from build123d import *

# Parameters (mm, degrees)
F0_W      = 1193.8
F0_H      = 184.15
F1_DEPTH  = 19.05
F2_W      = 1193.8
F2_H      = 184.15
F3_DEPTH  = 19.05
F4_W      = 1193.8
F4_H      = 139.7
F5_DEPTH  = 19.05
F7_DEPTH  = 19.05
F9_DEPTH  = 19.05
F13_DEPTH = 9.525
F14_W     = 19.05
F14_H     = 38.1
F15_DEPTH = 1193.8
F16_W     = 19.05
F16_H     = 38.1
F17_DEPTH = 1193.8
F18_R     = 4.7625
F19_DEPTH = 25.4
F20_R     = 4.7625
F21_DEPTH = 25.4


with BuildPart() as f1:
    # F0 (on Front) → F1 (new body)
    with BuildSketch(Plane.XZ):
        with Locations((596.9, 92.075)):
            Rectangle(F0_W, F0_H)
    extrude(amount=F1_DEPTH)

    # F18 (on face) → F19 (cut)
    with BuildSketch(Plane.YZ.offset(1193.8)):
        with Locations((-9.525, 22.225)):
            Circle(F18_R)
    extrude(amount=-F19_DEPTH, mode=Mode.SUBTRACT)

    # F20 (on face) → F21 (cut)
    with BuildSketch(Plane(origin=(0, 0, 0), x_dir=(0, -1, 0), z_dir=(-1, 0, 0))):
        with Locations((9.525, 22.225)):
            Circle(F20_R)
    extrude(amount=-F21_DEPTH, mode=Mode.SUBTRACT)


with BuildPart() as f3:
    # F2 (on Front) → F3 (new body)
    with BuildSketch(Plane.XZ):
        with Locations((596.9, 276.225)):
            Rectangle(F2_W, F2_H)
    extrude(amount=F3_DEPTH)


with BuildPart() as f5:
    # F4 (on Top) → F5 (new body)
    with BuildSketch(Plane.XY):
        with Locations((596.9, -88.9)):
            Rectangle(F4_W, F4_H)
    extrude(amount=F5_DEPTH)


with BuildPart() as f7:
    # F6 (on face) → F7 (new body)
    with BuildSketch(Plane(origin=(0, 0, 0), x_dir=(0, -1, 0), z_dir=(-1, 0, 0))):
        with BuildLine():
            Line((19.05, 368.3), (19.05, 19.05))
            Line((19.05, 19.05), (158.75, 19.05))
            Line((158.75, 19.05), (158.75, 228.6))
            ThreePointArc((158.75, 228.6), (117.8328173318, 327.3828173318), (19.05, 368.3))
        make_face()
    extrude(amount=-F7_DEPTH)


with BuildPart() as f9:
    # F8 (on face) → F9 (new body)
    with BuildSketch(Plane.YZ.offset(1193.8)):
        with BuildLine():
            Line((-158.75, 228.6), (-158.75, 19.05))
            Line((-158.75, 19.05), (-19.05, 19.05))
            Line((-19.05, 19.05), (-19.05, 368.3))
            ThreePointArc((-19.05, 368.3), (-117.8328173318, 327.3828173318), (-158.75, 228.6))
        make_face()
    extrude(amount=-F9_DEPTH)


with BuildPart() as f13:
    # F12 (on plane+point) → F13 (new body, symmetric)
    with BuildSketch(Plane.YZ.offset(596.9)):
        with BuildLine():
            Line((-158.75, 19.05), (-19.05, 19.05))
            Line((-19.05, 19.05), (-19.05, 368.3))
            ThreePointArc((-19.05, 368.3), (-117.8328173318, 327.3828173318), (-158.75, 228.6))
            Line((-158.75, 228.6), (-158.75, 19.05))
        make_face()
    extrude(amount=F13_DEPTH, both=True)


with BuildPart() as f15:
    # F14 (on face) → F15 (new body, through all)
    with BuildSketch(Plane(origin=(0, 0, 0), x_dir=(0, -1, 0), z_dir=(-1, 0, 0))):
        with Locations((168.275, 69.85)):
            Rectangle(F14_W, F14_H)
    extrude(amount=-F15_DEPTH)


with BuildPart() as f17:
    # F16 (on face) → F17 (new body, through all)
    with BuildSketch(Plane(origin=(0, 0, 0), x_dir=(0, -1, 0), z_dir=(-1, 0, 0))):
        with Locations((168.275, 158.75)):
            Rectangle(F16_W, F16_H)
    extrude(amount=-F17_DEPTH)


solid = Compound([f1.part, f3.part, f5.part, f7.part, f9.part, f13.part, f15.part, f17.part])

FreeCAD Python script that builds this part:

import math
import FreeCAD as App
import Part
import Sketcher
from FreeCAD import Vector
Q = App.Units.Quantity

doc = App.newDocument("Part")
body = doc.addObject("PartDesign::Body", "Body")

sketch1 = doc.addObject("Sketcher::SketchObject", "Sketch")
body.addObject(sketch1)
sketch1.AttachmentSupport = (doc.XZ_Plane, [""])
sketch1.MapMode = "FlatFace"
sketch1.addGeometry([
    Part.LineSegment(Vector(0, 184, 0), Vector(0, 0, 0)),
    Part.LineSegment(Vector(0, 0, 0), Vector(1194, 0, 0)),
    Part.LineSegment(Vector(1194, 0, 0), Vector(1194, 184, 0)),
    Part.LineSegment(Vector(1194, 184, 0), Vector(0, 184, 0)),
], False)
sketch1.addConstraint([
    Sketcher.Constraint("Coincident", 0, 2, 1, 1),
    Sketcher.Constraint("Coincident", 1, 2, 2, 1),
    Sketcher.Constraint("Coincident", 2, 2, 3, 1),
    Sketcher.Constraint("Coincident", 3, 2, 0, 1),
    Sketcher.Constraint("Vertical", 0),
    Sketcher.Constraint("Horizontal", 1),
    Sketcher.Constraint("Vertical", 2),
    Sketcher.Constraint("Horizontal", 3),
    Sketcher.Constraint("Coincident", 0, 2, -1, 1),
    Sketcher.Constraint("DistanceX", 1, 1, 1, 2, Q("47 in")),
    Sketcher.Constraint("DistanceY", 0, 2, 0, 1, Q("7.25 in")),
])
pad1 = doc.addObject("PartDesign::Pad", "Pad")
body.addObject(pad1)
pad1.Profile = sketch1
pad1.Length = Q("0.75 in")

sketch2 = doc.addObject("Sketcher::SketchObject", "Sketch001")
body.addObject(sketch2)
sketch2.AttachmentSupport = (doc.YZ_Plane, [""])
sketch2.MapMode = "FlatFace"
sketch2.AttachmentOffset = App.Placement(Vector(0, 0, 47 * 25.4), App.Rotation())
sketch2.addGeometry(Part.Circle(Vector(-9.5, 22.2, 0), Vector(0, 0, 1), 4.8), False)
sketch2.addConstraint([
    Sketcher.Constraint("Diameter", 0, Q("0.375 in")),
    Sketcher.Constraint("DistanceX", 0, 3, -1, 1, Q("0.375 in")),
    Sketcher.Constraint("DistanceY", -1, 1, 0, 3, Q("0.875 in")),
])
pocket1 = doc.addObject("PartDesign::Pocket", "Pocket")
body.addObject(pocket1)
pocket1.Profile = sketch2
pocket1.Length = Q("1 in")

sketch3 = doc.addObject("Sketcher::SketchObject", "Sketch002")
body.addObject(sketch3)
sketch3.AttachmentSupport = (doc.YZ_Plane, [""])
sketch3.MapMode = "FlatFace"
sketch3.addGeometry(Part.Circle(Vector(-9.5, 22.2, 0), Vector(0, 0, 1), 4.8), False)
sketch3.addConstraint([
    Sketcher.Constraint("Diameter", 0, Q("0.375 in")),
    Sketcher.Constraint("DistanceX", 0, 3, -1, 1, Q("0.375 in")),
    Sketcher.Constraint("DistanceY", -1, 1, 0, 3, Q("0.875 in")),
])
pocket2 = doc.addObject("PartDesign::Pocket", "Pocket001")
body.addObject(pocket2)
pocket2.Profile = sketch3
pocket2.Length = Q("1 in")
pocket2.Reversed = True
body2 = doc.addObject("PartDesign::Body", "Body001")

sketch4 = doc.addObject("Sketcher::SketchObject", "Sketch003")
body2.addObject(sketch4)
sketch4.AttachmentSupport = (doc.getObject("XZ_Plane001"), [""])
sketch4.MapMode = "FlatFace"
sketch4.addGeometry([
    Part.LineSegment(Vector(0, 368, 0), Vector(0, 184, 0)),
    Part.LineSegment(Vector(0, 184, 0), Vector(1194, 184, 0)),
    Part.LineSegment(Vector(1194, 184, 0), Vector(1194, 368, 0)),
    Part.LineSegment(Vector(1194, 368, 0), Vector(0, 368, 0)),
], False)
sketch4.addConstraint([
    Sketcher.Constraint("Coincident", 0, 2, 1, 1),
    Sketcher.Constraint("Coincident", 1, 2, 2, 1),
    Sketcher.Constraint("Coincident", 2, 2, 3, 1),
    Sketcher.Constraint("Coincident", 3, 2, 0, 1),
    Sketcher.Constraint("Vertical", 0),
    Sketcher.Constraint("Horizontal", 1),
    Sketcher.Constraint("Vertical", 2),
    Sketcher.Constraint("Horizontal", 3),
    Sketcher.Constraint("PointOnObject", 0, 2, -2),
    Sketcher.Constraint("DistanceX", 1, 1, 1, 2, Q("47 in")),
    Sketcher.Constraint("DistanceY", 0, 2, 0, 1, Q("7.25 in")),
    Sketcher.Constraint("DistanceY", -1, 1, 2, 2, Q("14.5 in")),
])
pad2 = doc.addObject("PartDesign::Pad", "Pad001")
body2.addObject(pad2)
pad2.Profile = sketch4
pad2.Length = Q("0.75 in")
body3 = doc.addObject("PartDesign::Body", "Body002")

sketch5 = doc.addObject("Sketcher::SketchObject", "Sketch004")
body3.addObject(sketch5)
sketch5.AttachmentSupport = (doc.getObject("XY_Plane002"), [""])
sketch5.MapMode = "FlatFace"
sketch5.addGeometry([
    Part.LineSegment(Vector(0, -19, 0), Vector(0, -159, 0)),
    Part.LineSegment(Vector(0, -159, 0), Vector(1194, -159, 0)),
    Part.LineSegment(Vector(1194, -159, 0), Vector(1194, -19, 0)),
    Part.LineSegment(Vector(1194, -19, 0), Vector(0, -19, 0)),
], False)
sketch5.addConstraint([
    Sketcher.Constraint("Coincident", 0, 2, 1, 1),
    Sketcher.Constraint("Coincident", 1, 2, 2, 1),
    Sketcher.Constraint("Coincident", 2, 2, 3, 1),
    Sketcher.Constraint("Coincident", 3, 2, 0, 1),
    Sketcher.Constraint("Vertical", 0),
    Sketcher.Constraint("Horizontal", 1),
    Sketcher.Constraint("Vertical", 2),
    Sketcher.Constraint("Horizontal", 3),
    Sketcher.Constraint("PointOnObject", 0, 2, -2),
    Sketcher.Constraint("DistanceX", 1, 1, 1, 2, Q("47 in")),
    Sketcher.Constraint("DistanceY", 0, 2, 0, 1, Q("5.5 in")),
    Sketcher.Constraint("DistanceY", 0, 2, -1, 1, Q("6.25 in")),
])
pad3 = doc.addObject("PartDesign::Pad", "Pad002")
body3.addObject(pad3)
pad3.Profile = sketch5
pad3.Length = Q("0.75 in")
body4 = doc.addObject("PartDesign::Body", "Body003")

sketch6 = doc.addObject("Sketcher::SketchObject", "Sketch005")
body4.addObject(sketch6)
sketch6.AttachmentSupport = (doc.getObject("YZ_Plane003"), [""])
sketch6.MapMode = "FlatFace"
sketch6.addGeometry([
    Part.LineSegment(Vector(-19, 368, 0), Vector(-19, 19, 0)),
    Part.LineSegment(Vector(-19, 19, 0), Vector(-159, 19, 0)),
    Part.LineSegment(Vector(-159, 19, 0), Vector(-159, 229, 0)),
    Part.ArcOfCircle(Part.Circle(Vector(-19, 229, 0), Vector(0, 0, 1), 140), math.radians(90), math.radians(180)),
], False)
sketch6.addConstraint([
    Sketcher.Constraint("Coincident", 0, 2, 1, 1),
    Sketcher.Constraint("Coincident", 1, 2, 2, 1),
    Sketcher.Constraint("Tangent", 2, 2, 3, 2),
    Sketcher.Constraint("Coincident", 3, 1, 0, 1),
    Sketcher.Constraint("Vertical", 0),
    Sketcher.Constraint("Horizontal", 1),
    Sketcher.Constraint("Vertical", 2),
    Sketcher.Constraint("Vertical", 3, 3, 0, 2),
    Sketcher.Constraint("Radius", 3, Q("5.5 in")),
    Sketcher.Constraint("DistanceY", -1, 1, 3, 3, Q("9 in")),
    Sketcher.Constraint("DistanceY", 0, 2, 0, 1, Q("13.75 in")),
    Sketcher.Constraint("DistanceX", 3, 3, -1, 1, Q("0.75 in")),
])
pad4 = doc.addObject("PartDesign::Pad", "Pad003")
body4.addObject(pad4)
pad4.Profile = sketch6
pad4.Length = Q("0.75 in")
body5 = doc.addObject("PartDesign::Body", "Body004")

sketch7 = doc.addObject("Sketcher::SketchObject", "Sketch006")
body5.addObject(sketch7)
sketch7.AttachmentSupport = (doc.getObject("YZ_Plane004"), [""])
sketch7.MapMode = "FlatFace"
sketch7.AttachmentOffset = App.Placement(Vector(0, 0, 47 * 25.4), App.Rotation())
sketch7.addGeometry([
    Part.LineSegment(Vector(-159, 229, 0), Vector(-159, 19, 0)),
    Part.LineSegment(Vector(-159, 19, 0), Vector(-19, 19, 0)),
    Part.LineSegment(Vector(-19, 19, 0), Vector(-19, 368, 0)),
    Part.ArcOfCircle(Part.Circle(Vector(-19, 229, 0), Vector(0, 0, 1), 140), math.radians(90), math.radians(180)),
], False)
sketch7.addConstraint([
    Sketcher.Constraint("Coincident", 0, 2, 1, 1),
    Sketcher.Constraint("Coincident", 1, 2, 2, 1),
    Sketcher.Constraint("Coincident", 2, 2, 3, 1),
    Sketcher.Constraint("Tangent", 3, 2, 0, 1),
    Sketcher.Constraint("Vertical", 0),
    Sketcher.Constraint("Horizontal", 1),
    Sketcher.Constraint("Vertical", 2),
    Sketcher.Constraint("Vertical", 3, 3, 1, 2),
    Sketcher.Constraint("Radius", 3, Q("5.5 in")),
    Sketcher.Constraint("DistanceY", -1, 1, 3, 3, Q("9 in")),
    Sketcher.Constraint("DistanceY", 0, 2, 0, 1, Q("8.25 in")),
    Sketcher.Constraint("DistanceX", 3, 3, -1, 1, Q("0.75 in")),
])
pad5 = doc.addObject("PartDesign::Pad", "Pad004")
body5.addObject(pad5)
pad5.Profile = sketch7
pad5.Length = Q("0.75 in")
pad5.Reversed = True
body6 = doc.addObject("PartDesign::Body", "Body005")

sketch8 = doc.addObject("Sketcher::SketchObject", "Sketch007")
body6.addObject(sketch8)
sketch8.AttachmentSupport = (doc.getObject("YZ_Plane005"), [""])
sketch8.MapMode = "FlatFace"
sketch8.AttachmentOffset = App.Placement(Vector(0, 0, 23.5 * 25.4), App.Rotation())
sketch8.addGeometry([
    Part.LineSegment(Vector(-159, 19, 0), Vector(-19, 19, 0)),
    Part.LineSegment(Vector(-19, 19, 0), Vector(-19, 368, 0)),
    Part.ArcOfCircle(Part.Circle(Vector(-19, 229, 0), Vector(0, 0, 1), 140), math.radians(90), math.radians(180)),
    Part.LineSegment(Vector(-159, 229, 0), Vector(-159, 19, 0)),
], False)
sketch8.addConstraint([
    Sketcher.Constraint("Coincident", 0, 2, 1, 1),
    Sketcher.Constraint("Coincident", 1, 2, 2, 1),
    Sketcher.Constraint("Tangent", 2, 2, 3, 1),
    Sketcher.Constraint("Coincident", 3, 2, 0, 1),
    Sketcher.Constraint("Horizontal", 0),
    Sketcher.Constraint("Vertical", 1),
    Sketcher.Constraint("Vertical", 3),
    Sketcher.Constraint("Vertical", 2, 3, 0, 2),
    Sketcher.Constraint("Radius", 2, Q("5.5 in")),
    Sketcher.Constraint("DistanceY", -1, 1, 2, 3, Q("9 in")),
    Sketcher.Constraint("DistanceY", 1, 1, 1, 2, Q("13.75 in")),
    Sketcher.Constraint("DistanceX", 2, 3, -1, 1, Q("0.75 in")),
])
pad6 = doc.addObject("PartDesign::Pad", "Pad005")
body6.addObject(pad6)
pad6.Profile = sketch8
pad6.Length = Q("0.75 in")
pad6.Midplane = True
body7 = doc.addObject("PartDesign::Body", "Body006")

sketch9 = doc.addObject("Sketcher::SketchObject", "Sketch008")
body7.addObject(sketch9)
sketch9.AttachmentSupport = (doc.getObject("YZ_Plane006"), [""])
sketch9.MapMode = "FlatFace"
sketch9.addGeometry([
    Part.LineSegment(Vector(-159, 89, 0), Vector(-159, 51, 0)),
    Part.LineSegment(Vector(-159, 51, 0), Vector(-178, 51, 0)),
    Part.LineSegment(Vector(-178, 51, 0), Vector(-178, 89, 0)),
    Part.LineSegment(Vector(-178, 89, 0), Vector(-159, 89, 0)),
], False)
sketch9.addConstraint([
    Sketcher.Constraint("Coincident", 0, 2, 1, 1),
    Sketcher.Constraint("Coincident", 1, 2, 2, 1),
    Sketcher.Constraint("Coincident", 2, 2, 3, 1),
    Sketcher.Constraint("Coincident", 3, 2, 0, 1),
    Sketcher.Constraint("Vertical", 0),
    Sketcher.Constraint("Horizontal", 1),
    Sketcher.Constraint("Vertical", 2),
    Sketcher.Constraint("Horizontal", 3),
    Sketcher.Constraint("DistanceY", 0, 2, 0, 1, Q("1.5 in")),
    Sketcher.Constraint("DistanceY", -1, 1, 0, 2, Q("2 in")),
    Sketcher.Constraint("DistanceX", 1, 2, -1, 1, Q("7 in")),
    Sketcher.Constraint("DistanceX", 1, 2, 1, 1, Q("0.75 in")),
])
pad7 = doc.addObject("PartDesign::Pad", "Pad006")
body7.addObject(pad7)
pad7.Profile = sketch9
pad7.Length = Q("47 in")
body8 = doc.addObject("PartDesign::Body", "Body007")

sketch10 = doc.addObject("Sketcher::SketchObject", "Sketch009")
body8.addObject(sketch10)
sketch10.AttachmentSupport = (doc.getObject("YZ_Plane007"), [""])
sketch10.MapMode = "FlatFace"
sketch10.addGeometry([
    Part.LineSegment(Vector(-159, 178, 0), Vector(-159, 140, 0)),
    Part.LineSegment(Vector(-159, 140, 0), Vector(-178, 140, 0)),
    Part.LineSegment(Vector(-178, 140, 0), Vector(-178, 178, 0)),
    Part.LineSegment(Vector(-178, 178, 0), Vector(-159, 178, 0)),
], False)
sketch10.addConstraint([
    Sketcher.Constraint("Coincident", 0, 2, 1, 1),
    Sketcher.Constraint("Coincident", 1, 2, 2, 1),
    Sketcher.Constraint("Coincident", 2, 2, 3, 1),
    Sketcher.Constraint("Coincident", 3, 2, 0, 1),
    Sketcher.Constraint("Vertical", 0),
    Sketcher.Constraint("Horizontal", 1),
    Sketcher.Constraint("Vertical", 2),
    Sketcher.Constraint("Horizontal", 3),
    Sketcher.Constraint("DistanceY", 0, 2, 0, 1, Q("1.5 in")),
    Sketcher.Constraint("DistanceX", 1, 2, -1, 1, Q("7 in")),
    Sketcher.Constraint("DistanceY", -1, 1, 2, 2, Q("7 in")),
    Sketcher.Constraint("DistanceX", 1, 2, 1, 1, Q("0.75 in")),
])
pad8 = doc.addObject("PartDesign::Pad", "Pad007")
body8.addObject(pad8)
pad8.Profile = sketch10
pad8.Length = Q("47 in")

doc.recompute()
